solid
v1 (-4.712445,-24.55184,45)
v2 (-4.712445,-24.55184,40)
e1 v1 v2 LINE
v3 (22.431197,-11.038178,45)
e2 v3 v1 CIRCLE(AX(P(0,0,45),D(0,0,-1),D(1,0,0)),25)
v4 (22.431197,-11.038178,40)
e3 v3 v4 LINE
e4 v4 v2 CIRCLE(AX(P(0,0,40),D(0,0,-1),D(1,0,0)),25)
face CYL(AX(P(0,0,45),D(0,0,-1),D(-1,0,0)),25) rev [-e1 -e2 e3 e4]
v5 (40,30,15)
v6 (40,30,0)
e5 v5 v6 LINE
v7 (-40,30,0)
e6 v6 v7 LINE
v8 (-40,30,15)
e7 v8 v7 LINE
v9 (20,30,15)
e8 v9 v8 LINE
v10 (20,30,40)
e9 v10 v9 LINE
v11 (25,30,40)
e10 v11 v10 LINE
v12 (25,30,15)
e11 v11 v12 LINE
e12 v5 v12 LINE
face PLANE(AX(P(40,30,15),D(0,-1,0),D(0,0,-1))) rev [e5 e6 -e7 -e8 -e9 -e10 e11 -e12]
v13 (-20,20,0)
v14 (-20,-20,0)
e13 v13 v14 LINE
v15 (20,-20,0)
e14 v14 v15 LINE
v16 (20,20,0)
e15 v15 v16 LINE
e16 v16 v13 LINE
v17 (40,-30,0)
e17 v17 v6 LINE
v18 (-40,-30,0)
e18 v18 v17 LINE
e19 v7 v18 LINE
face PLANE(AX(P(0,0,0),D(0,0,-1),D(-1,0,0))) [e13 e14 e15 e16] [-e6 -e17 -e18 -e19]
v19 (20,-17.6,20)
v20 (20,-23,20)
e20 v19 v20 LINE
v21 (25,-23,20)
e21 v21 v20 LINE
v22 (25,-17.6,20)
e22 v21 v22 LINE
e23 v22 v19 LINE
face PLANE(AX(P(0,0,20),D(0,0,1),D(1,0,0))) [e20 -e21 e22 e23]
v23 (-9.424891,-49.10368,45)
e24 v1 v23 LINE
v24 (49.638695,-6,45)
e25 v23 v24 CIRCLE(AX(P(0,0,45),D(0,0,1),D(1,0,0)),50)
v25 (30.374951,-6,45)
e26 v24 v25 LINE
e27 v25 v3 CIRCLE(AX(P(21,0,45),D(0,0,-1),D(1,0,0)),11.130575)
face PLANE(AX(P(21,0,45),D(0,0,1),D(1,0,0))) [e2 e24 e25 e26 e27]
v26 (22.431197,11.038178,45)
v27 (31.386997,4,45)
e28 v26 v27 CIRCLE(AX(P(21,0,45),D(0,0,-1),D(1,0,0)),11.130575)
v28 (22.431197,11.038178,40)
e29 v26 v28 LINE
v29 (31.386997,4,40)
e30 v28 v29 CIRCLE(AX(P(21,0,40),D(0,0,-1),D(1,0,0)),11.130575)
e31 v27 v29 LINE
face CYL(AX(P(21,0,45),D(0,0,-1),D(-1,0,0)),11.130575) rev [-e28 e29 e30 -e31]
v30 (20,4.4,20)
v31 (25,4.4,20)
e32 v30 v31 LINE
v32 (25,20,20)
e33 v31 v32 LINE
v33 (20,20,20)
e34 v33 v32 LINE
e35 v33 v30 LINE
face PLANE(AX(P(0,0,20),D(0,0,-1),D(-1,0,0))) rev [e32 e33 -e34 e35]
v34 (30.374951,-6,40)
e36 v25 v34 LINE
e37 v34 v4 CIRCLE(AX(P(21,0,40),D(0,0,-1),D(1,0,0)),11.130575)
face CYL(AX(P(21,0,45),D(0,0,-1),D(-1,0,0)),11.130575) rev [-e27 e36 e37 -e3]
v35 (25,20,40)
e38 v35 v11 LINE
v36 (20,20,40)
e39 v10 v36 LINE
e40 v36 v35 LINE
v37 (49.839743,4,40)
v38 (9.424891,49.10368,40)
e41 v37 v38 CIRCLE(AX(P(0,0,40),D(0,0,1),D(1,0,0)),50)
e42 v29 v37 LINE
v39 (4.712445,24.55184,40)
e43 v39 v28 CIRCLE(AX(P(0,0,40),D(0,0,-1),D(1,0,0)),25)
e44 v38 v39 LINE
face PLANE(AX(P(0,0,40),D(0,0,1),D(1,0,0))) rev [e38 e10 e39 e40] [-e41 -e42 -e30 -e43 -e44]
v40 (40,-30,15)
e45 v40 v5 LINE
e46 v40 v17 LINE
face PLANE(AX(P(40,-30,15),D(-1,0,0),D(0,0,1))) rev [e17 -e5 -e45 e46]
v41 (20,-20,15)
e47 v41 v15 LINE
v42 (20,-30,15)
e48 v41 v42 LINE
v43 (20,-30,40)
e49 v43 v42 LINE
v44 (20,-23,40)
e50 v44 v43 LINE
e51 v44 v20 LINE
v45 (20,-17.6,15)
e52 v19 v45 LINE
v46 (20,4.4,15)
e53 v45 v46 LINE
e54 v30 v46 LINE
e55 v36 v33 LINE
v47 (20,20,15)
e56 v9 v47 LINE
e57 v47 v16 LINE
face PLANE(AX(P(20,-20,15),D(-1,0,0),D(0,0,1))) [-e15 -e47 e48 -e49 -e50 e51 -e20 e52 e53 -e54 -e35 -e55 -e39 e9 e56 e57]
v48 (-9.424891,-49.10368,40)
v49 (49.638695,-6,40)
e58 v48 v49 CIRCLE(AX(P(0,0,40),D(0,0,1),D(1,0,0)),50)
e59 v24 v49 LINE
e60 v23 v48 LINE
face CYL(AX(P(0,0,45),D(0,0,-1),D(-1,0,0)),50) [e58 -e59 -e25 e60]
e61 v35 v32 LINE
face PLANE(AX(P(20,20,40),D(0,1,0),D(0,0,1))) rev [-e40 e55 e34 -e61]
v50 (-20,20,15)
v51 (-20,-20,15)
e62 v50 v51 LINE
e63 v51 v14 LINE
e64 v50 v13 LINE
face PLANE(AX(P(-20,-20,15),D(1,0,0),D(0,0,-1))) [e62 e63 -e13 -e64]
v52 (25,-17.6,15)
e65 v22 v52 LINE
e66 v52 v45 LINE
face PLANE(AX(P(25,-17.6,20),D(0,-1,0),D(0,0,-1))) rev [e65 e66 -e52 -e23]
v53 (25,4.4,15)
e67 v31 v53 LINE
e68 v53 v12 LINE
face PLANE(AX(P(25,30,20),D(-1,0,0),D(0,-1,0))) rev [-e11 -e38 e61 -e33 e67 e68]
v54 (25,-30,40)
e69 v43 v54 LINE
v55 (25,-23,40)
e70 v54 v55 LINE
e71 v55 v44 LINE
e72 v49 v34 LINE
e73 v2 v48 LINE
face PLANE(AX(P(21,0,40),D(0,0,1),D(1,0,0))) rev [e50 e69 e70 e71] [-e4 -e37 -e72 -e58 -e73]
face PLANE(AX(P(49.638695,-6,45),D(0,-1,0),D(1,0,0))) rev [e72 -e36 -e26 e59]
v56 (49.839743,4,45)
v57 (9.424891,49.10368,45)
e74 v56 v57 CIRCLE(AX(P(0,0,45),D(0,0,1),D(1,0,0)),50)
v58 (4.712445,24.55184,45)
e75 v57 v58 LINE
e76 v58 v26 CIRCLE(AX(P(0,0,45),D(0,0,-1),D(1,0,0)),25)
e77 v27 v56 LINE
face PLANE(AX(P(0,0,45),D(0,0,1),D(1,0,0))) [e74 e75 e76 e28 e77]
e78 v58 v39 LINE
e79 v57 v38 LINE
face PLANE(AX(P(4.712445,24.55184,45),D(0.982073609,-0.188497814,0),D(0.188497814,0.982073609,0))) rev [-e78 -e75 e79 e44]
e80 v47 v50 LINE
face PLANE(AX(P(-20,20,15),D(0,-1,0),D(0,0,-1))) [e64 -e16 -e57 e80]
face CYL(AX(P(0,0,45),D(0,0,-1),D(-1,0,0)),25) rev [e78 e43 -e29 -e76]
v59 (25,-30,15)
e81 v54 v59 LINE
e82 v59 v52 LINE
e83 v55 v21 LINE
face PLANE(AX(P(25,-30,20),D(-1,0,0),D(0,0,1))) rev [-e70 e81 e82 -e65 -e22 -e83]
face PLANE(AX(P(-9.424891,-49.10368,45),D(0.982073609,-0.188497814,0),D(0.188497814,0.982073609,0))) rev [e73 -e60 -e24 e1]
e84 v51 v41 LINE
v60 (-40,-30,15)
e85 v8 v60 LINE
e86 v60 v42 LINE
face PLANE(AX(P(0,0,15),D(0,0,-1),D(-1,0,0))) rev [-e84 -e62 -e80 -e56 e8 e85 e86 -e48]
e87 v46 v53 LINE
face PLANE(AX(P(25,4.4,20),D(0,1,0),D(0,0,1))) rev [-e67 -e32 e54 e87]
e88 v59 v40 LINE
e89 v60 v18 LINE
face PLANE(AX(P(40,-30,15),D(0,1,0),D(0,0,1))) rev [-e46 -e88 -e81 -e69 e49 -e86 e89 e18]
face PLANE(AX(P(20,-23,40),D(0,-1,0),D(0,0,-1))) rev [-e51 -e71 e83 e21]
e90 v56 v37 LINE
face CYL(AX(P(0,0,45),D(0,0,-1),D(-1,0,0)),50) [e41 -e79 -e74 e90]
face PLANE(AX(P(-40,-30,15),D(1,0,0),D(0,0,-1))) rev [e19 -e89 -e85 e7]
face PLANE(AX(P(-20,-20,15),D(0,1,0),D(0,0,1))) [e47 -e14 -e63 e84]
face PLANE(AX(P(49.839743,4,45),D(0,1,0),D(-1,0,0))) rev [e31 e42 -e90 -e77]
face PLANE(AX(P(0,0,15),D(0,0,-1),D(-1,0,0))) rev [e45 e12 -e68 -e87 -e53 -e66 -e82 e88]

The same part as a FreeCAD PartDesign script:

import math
import FreeCAD as App
import Part
import Sketcher
Q = App.Units.Quantity


def add_polygon(sketch, points):
    """Adds a closed chain of lines whose ends are joined by coincident constraints."""
    first, n = sketch.GeometryCount, len(points)
    for a, b in zip(points, points[1:] + points[:1]):
        sketch.addGeometry(Part.LineSegment(App.Vector(*a, 0), App.Vector(*b, 0)), False)
    for i in range(n):
        sketch.addConstraint(Sketcher.Constraint("Coincident", first + i, 2, first + (i + 1) % n, 1))

doc = App.newDocument("Part")
body = doc.addObject("PartDesign::Body", "Body")

sketch1 = body.newObject("Sketcher::SketchObject", "Sketch")
sketch1.AttachmentSupport = (doc.getObject("XY_Plane"), [""])
sketch1.MapMode = "FlatFace"
add_polygon(sketch1, [(-40, -30), (40, -30), (40, 30), (-40, 30)])
add_polygon(sketch1, [(20, 20), (20, -20), (-20, -20), (-20, 20)])
sketch1.addConstraint(Sketcher.Constraint("Horizontal", 0))
sketch1.addConstraint(Sketcher.Constraint("Vertical", 1))
sketch1.addConstraint(Sketcher.Constraint("Horizontal", 2))
sketch1.addConstraint(Sketcher.Constraint("Vertical", 3))
sketch1.addConstraint(Sketcher.Constraint("Vertical", 4))
sketch1.addConstraint(Sketcher.Constraint("Horizontal", 5))
sketch1.addConstraint(Sketcher.Constraint("Vertical", 6))
sketch1.addConstraint(Sketcher.Constraint("Horizontal", 7))
sketch1.addConstraint(Sketcher.Constraint("Symmetric", 0, 2, 2, 2, -1, 1))
sketch1.addConstraint(Sketcher.Constraint("Symmetric", 4, 2, 6, 2, -1, 1))
sketch1.addConstraint(Sketcher.Constraint("Equal", 7, 4))
sketch1.addConstraint(Sketcher.Constraint("DistanceX", 0, 1, 0, 2, Q("80 mm")))
sketch1.addConstraint(Sketcher.Constraint("DistanceX", 5, 2, 5, 1, Q("40 mm")))
sketch1.addConstraint(Sketcher.Constraint("DistanceY", 1, 1, 1, 2, Q("60 mm")))
pad1 = body.newObject("PartDesign::Pad", "Pad")
pad1.Profile = sketch1
pad1.Length = 15

sketch2 = body.newObject("Sketcher::SketchObject", "Sketch001")
sketch2.AttachmentSupport = (doc.getObject("XY_Plane"), [""])
sketch2.MapMode = "FlatFace"
sketch2.AttachmentOffset = App.Placement(App.Vector(0, 0, 15), App.Rotation())
add_polygon(sketch2, [(20, 30), (20, 4), (25, 4), (25, 30)])
add_polygon(sketch2, [(20, -18), (20, -30), (25, -30), (25, -18)])
sketch2.addConstraint(Sketcher.Constraint("Vertical", 0))
sketch2.addConstraint(Sketcher.Constraint("Horizontal", 1))
sketch2.addConstraint(Sketcher.Constraint("Vertical", 2))
sketch2.addConstraint(Sketcher.Constraint("Horizontal", 3))
sketch2.addConstraint(Sketcher.Constraint("Vertical", 4))
sketch2.addConstraint(Sketcher.Constraint("Horizontal", 5))
sketch2.addConstraint(Sketcher.Constraint("Vertical", 6))
sketch2.addConstraint(Sketcher.Constraint("Horizontal", 7))
sketch2.addConstraint(Sketcher.Constraint("Symmetric", 3, 2, 4, 2, -1))
sketch2.addConstraint(Sketcher.Constraint("Vertical", 2, 2, 5, 2))
sketch2.addConstraint(Sketcher.Constraint("DistanceX", 1, 1, 1, 2, Q("5 mm")))
sketch2.addConstraint(Sketcher.Constraint("DistanceY", 0, 2, 0, 1, Q("25.6 mm")))
sketch2.addConstraint(Sketcher.Constraint("DistanceY", 4, 2, 4, 1, Q("12.4 mm")))
sketch2.addConstraint(Sketcher.Constraint("DistanceX", -1, 1, 0, 2, Q("20 mm")))
sketch2.addConstraint(Sketcher.Constraint("DistanceY", -1, 1, 2, 2, Q("30 mm")))
pad2 = body.newObject("PartDesign::Pad", "Pad001")
pad2.Profile = sketch2
pad2.Length = 5

sketch3 = body.newObject("Sketcher::SketchObject", "Sketch002")
sketch3.AttachmentSupport = (doc.getObject("XY_Plane"), [""])
sketch3.MapMode = "FlatFace"
sketch3.AttachmentOffset = App.Placement(App.Vector(0, 0, 20), App.Rotation())
add_polygon(sketch3, [(20, -23), (20, -30), (25, -30), (25, -23)])
sketch3.addConstraint(Sketcher.Constraint("Vertical", 0))
sketch3.addConstraint(Sketcher.Constraint("Horizontal", 1))
sketch3.addConstraint(Sketcher.Constraint("Vertical", 2))
sketch3.addConstraint(Sketcher.Constraint("Horizontal", 3))
sketch3.addConstraint(Sketcher.Constraint("DistanceX", 1, 1, 1, 2, Q("5 mm")))
sketch3.addConstraint(Sketcher.Constraint("DistanceY", 0, 2, 0, 1, Q("7 mm")))
sketch3.addConstraint(Sketcher.Constraint("DistanceX", -1, 1, 0, 2, Q("20 mm")))
sketch3.addConstraint(Sketcher.Constraint("DistanceY", 0, 2, -1, 1, Q("30 mm")))
pad3 = body.newObject("PartDesign::Pad", "Pad002")
pad3.Profile = sketch3
pad3.Length = 20

sketch4 = body.newObject("Sketcher::SketchObject", "Sketch003")
sketch4.AttachmentSupport = (doc.getObject("XY_Plane"), [""])
sketch4.MapMode = "FlatFace"
sketch4.AttachmentOffset = App.Placement(App.Vector(0, 0, 20), App.Rotation())
add_polygon(sketch4, [(20, 30), (20, 20), (25, 20), (25, 30)])
sketch4.addConstraint(Sketcher.Constraint("Vertical", 0))
sketch4.addConstraint(Sketcher.Constraint("Horizontal", 1))
sketch4.addConstraint(Sketcher.Constraint("Vertical", 2))
sketch4.addConstraint(Sketcher.Constraint("Horizontal", 3))
sketch4.addConstraint(Sketcher.Constraint("DistanceX", 1, 1, 1, 2, Q("5 mm")))
sketch4.addConstraint(Sketcher.Constraint("DistanceY", 0, 2, 0, 1, Q("10 mm")))
sketch4.addConstraint(Sketcher.Constraint("DistanceX", -1, 1, 0, 2, Q("20 mm")))
sketch4.addConstraint(Sketcher.Constraint("DistanceY", -1, 1, 0, 2, Q("20 mm")))
pad4 = body.newObject("PartDesign::Pad", "Pad003")
pad4.Profile = sketch4
pad4.Length = 20

sketch5 = body.newObject("Sketcher::SketchObject", "Sketch004")
sketch5.AttachmentSupport = (doc.getObject("XY_Plane"), [""])
sketch5.MapMode = "FlatFace"
sketch5.AttachmentOffset = App.Placement(App.Vector(0, 0, 40), App.Rotation())
sketch5.addGeometry(Part.LineSegment(App.Vector(-5, -25, 0), App.Vector(-9, -49, 0)), False)
sketch5.addGeometry(Part.ArcOfCircle(Part.Circle(App.Vector(0, 0, 0), App.Vector(0, 0, 1), 50), math.radians(-101), math.radians(-7)), False)
sketch5.addGeometry(Part.LineSegment(App.Vector(50, -6, 0), App.Vector(30, -6, 0)), False)
sketch5.addGeometry(Part.ArcOfCircle(Part.Circle(App.Vector(21, 0, 0), App.Vector(0, 0, 1), 11), math.radians(-83), math.radians(-33)), False)
sketch5.addGeometry(Part.ArcOfCircle(Part.Circle(App.Vector(0, 0, 0), App.Vector(0, 0, 1), 25), math.radians(-101), math.radians(-26)), False)
sketch5.addGeometry(Part.LineSegment(App.Vector(9, 49, 0), App.Vector(5, 25, 0)), False)
sketch5.addGeometry(Part.ArcOfCircle(Part.Circle(App.Vector(0, 0, 0), App.Vector(0, 0, 1), 25), math.radians(26), math.radians(79)), False)
sketch5.addGeometry(Part.ArcOfCircle(Part.Circle(App.Vector(21, 0, 0), App.Vector(0, 0, 1), 11), math.radians(21), math.radians(83)), False)
sketch5.addGeometry(Part.LineSegment(App.Vector(31, 4, 0), App.Vector(50, 4, 0)), False)
sketch5.addGeometry(Part.ArcOfCircle(Part.Circle(App.Vector(0, 0, 0), App.Vector(0, 0, 1), 50), math.radians(5), math.radians(79)), False)
sketch5.addConstraint(Sketcher.Constraint("Coincident", 0, 2, 1, 1))
sketch5.addConstraint(Sketcher.Constraint("Coincident", 1, 2, 2, 1))
sketch5.addConstraint(Sketcher.Constraint("Coincident", 2, 2, 3, 2))
sketch5.addConstraint(Sketcher.Constraint("Coincident", 3, 1, 4, 2))
sketch5.addConstraint(Sketcher.Constraint("Coincident", 4, 1, 0, 1))
sketch5.addConstraint(Sketcher.Constraint("Coincident", 5, 2, 6, 2))
sketch5.addConstraint(Sketcher.Constraint("Coincident", 6, 1, 7, 2))
sketch5.addConstraint(Sketcher.Constraint("Coincident", 7, 1, 8, 1))
sketch5.addConstraint(Sketcher.Constraint("Coincident", 8, 2, 9, 1))
sketch5.addConstraint(Sketcher.Constraint("Coincident", 9, 2, 5, 1))
sketch5.addConstraint(Sketcher.Constraint("Horizontal", 2))
sketch5.addConstraint(Sketcher.Constraint("Horizontal", 8))
sketch5.addConstraint(Sketcher.Constraint("Coincident", 1, 3, -1, 1))
sketch5.addConstraint(Sketcher.Constraint("Coincident", 4, 3, -1, 1))
sketch5.addConstraint(Sketcher.Constraint("Coincident", 6, 3, -1, 1))
sketch5.addConstraint(Sketcher.Constraint("Coincident", 9, 3, -1, 1))
sketch5.addConstraint(Sketcher.Constraint("Coincident", 7, 3, 3, 3))
sketch5.addConstraint(Sketcher.Constraint("Equal", 4, 6))
sketch5.addConstraint(Sketcher.Constraint("Equal", 3, 7))
sketch5.addConstraint(Sketcher.Constraint("Equal", 1, 9))
sketch5.addConstraint(Sketcher.Constraint("PointOnObject", 3, 3, -1))
sketch5.addConstraint(Sketcher.Constraint("Parallel", 0, 5))
sketch5.addConstraint(Sketcher.Constraint("Radius", 1, Q("50 mm")))
sketch5.addConstraint(Sketcher.Constraint("Radius", 4, Q("25 mm")))
sketch5.addConstraint(Sketcher.Constraint("DistanceX", -1, 1, 3, 3, Q("21 mm")))
sketch5.addConstraint(Sketcher.Constraint("DistanceY", 1, 2, -1, 1, Q("6 mm")))
sketch5.addConstraint(Sketcher.Constraint("DistanceY", -1, 1, 7, 1, Q("4 mm")))
sketch5.addConstraint(Sketcher.Constraint("Radius", 3, Q("11.130575 mm")))
sketch5.addConstraint(Sketcher.Constraint("DistanceX", 0, 2, -1, 1, Q("9.424891 mm")))
sketch5.addConstraint(Sketcher.Constraint("DistanceY", 4, 1, -1, 1, Q("24.55184 mm")))
sketch5.addConstraint(Sketcher.Constraint("DistanceY", -1, 1, 5, 2, Q("24.55184 mm")))
pad5 = body.newObject("PartDesign::Pad", "Pad004")
pad5.Profile = sketch5
pad5.Length = 5

doc.recompute()
